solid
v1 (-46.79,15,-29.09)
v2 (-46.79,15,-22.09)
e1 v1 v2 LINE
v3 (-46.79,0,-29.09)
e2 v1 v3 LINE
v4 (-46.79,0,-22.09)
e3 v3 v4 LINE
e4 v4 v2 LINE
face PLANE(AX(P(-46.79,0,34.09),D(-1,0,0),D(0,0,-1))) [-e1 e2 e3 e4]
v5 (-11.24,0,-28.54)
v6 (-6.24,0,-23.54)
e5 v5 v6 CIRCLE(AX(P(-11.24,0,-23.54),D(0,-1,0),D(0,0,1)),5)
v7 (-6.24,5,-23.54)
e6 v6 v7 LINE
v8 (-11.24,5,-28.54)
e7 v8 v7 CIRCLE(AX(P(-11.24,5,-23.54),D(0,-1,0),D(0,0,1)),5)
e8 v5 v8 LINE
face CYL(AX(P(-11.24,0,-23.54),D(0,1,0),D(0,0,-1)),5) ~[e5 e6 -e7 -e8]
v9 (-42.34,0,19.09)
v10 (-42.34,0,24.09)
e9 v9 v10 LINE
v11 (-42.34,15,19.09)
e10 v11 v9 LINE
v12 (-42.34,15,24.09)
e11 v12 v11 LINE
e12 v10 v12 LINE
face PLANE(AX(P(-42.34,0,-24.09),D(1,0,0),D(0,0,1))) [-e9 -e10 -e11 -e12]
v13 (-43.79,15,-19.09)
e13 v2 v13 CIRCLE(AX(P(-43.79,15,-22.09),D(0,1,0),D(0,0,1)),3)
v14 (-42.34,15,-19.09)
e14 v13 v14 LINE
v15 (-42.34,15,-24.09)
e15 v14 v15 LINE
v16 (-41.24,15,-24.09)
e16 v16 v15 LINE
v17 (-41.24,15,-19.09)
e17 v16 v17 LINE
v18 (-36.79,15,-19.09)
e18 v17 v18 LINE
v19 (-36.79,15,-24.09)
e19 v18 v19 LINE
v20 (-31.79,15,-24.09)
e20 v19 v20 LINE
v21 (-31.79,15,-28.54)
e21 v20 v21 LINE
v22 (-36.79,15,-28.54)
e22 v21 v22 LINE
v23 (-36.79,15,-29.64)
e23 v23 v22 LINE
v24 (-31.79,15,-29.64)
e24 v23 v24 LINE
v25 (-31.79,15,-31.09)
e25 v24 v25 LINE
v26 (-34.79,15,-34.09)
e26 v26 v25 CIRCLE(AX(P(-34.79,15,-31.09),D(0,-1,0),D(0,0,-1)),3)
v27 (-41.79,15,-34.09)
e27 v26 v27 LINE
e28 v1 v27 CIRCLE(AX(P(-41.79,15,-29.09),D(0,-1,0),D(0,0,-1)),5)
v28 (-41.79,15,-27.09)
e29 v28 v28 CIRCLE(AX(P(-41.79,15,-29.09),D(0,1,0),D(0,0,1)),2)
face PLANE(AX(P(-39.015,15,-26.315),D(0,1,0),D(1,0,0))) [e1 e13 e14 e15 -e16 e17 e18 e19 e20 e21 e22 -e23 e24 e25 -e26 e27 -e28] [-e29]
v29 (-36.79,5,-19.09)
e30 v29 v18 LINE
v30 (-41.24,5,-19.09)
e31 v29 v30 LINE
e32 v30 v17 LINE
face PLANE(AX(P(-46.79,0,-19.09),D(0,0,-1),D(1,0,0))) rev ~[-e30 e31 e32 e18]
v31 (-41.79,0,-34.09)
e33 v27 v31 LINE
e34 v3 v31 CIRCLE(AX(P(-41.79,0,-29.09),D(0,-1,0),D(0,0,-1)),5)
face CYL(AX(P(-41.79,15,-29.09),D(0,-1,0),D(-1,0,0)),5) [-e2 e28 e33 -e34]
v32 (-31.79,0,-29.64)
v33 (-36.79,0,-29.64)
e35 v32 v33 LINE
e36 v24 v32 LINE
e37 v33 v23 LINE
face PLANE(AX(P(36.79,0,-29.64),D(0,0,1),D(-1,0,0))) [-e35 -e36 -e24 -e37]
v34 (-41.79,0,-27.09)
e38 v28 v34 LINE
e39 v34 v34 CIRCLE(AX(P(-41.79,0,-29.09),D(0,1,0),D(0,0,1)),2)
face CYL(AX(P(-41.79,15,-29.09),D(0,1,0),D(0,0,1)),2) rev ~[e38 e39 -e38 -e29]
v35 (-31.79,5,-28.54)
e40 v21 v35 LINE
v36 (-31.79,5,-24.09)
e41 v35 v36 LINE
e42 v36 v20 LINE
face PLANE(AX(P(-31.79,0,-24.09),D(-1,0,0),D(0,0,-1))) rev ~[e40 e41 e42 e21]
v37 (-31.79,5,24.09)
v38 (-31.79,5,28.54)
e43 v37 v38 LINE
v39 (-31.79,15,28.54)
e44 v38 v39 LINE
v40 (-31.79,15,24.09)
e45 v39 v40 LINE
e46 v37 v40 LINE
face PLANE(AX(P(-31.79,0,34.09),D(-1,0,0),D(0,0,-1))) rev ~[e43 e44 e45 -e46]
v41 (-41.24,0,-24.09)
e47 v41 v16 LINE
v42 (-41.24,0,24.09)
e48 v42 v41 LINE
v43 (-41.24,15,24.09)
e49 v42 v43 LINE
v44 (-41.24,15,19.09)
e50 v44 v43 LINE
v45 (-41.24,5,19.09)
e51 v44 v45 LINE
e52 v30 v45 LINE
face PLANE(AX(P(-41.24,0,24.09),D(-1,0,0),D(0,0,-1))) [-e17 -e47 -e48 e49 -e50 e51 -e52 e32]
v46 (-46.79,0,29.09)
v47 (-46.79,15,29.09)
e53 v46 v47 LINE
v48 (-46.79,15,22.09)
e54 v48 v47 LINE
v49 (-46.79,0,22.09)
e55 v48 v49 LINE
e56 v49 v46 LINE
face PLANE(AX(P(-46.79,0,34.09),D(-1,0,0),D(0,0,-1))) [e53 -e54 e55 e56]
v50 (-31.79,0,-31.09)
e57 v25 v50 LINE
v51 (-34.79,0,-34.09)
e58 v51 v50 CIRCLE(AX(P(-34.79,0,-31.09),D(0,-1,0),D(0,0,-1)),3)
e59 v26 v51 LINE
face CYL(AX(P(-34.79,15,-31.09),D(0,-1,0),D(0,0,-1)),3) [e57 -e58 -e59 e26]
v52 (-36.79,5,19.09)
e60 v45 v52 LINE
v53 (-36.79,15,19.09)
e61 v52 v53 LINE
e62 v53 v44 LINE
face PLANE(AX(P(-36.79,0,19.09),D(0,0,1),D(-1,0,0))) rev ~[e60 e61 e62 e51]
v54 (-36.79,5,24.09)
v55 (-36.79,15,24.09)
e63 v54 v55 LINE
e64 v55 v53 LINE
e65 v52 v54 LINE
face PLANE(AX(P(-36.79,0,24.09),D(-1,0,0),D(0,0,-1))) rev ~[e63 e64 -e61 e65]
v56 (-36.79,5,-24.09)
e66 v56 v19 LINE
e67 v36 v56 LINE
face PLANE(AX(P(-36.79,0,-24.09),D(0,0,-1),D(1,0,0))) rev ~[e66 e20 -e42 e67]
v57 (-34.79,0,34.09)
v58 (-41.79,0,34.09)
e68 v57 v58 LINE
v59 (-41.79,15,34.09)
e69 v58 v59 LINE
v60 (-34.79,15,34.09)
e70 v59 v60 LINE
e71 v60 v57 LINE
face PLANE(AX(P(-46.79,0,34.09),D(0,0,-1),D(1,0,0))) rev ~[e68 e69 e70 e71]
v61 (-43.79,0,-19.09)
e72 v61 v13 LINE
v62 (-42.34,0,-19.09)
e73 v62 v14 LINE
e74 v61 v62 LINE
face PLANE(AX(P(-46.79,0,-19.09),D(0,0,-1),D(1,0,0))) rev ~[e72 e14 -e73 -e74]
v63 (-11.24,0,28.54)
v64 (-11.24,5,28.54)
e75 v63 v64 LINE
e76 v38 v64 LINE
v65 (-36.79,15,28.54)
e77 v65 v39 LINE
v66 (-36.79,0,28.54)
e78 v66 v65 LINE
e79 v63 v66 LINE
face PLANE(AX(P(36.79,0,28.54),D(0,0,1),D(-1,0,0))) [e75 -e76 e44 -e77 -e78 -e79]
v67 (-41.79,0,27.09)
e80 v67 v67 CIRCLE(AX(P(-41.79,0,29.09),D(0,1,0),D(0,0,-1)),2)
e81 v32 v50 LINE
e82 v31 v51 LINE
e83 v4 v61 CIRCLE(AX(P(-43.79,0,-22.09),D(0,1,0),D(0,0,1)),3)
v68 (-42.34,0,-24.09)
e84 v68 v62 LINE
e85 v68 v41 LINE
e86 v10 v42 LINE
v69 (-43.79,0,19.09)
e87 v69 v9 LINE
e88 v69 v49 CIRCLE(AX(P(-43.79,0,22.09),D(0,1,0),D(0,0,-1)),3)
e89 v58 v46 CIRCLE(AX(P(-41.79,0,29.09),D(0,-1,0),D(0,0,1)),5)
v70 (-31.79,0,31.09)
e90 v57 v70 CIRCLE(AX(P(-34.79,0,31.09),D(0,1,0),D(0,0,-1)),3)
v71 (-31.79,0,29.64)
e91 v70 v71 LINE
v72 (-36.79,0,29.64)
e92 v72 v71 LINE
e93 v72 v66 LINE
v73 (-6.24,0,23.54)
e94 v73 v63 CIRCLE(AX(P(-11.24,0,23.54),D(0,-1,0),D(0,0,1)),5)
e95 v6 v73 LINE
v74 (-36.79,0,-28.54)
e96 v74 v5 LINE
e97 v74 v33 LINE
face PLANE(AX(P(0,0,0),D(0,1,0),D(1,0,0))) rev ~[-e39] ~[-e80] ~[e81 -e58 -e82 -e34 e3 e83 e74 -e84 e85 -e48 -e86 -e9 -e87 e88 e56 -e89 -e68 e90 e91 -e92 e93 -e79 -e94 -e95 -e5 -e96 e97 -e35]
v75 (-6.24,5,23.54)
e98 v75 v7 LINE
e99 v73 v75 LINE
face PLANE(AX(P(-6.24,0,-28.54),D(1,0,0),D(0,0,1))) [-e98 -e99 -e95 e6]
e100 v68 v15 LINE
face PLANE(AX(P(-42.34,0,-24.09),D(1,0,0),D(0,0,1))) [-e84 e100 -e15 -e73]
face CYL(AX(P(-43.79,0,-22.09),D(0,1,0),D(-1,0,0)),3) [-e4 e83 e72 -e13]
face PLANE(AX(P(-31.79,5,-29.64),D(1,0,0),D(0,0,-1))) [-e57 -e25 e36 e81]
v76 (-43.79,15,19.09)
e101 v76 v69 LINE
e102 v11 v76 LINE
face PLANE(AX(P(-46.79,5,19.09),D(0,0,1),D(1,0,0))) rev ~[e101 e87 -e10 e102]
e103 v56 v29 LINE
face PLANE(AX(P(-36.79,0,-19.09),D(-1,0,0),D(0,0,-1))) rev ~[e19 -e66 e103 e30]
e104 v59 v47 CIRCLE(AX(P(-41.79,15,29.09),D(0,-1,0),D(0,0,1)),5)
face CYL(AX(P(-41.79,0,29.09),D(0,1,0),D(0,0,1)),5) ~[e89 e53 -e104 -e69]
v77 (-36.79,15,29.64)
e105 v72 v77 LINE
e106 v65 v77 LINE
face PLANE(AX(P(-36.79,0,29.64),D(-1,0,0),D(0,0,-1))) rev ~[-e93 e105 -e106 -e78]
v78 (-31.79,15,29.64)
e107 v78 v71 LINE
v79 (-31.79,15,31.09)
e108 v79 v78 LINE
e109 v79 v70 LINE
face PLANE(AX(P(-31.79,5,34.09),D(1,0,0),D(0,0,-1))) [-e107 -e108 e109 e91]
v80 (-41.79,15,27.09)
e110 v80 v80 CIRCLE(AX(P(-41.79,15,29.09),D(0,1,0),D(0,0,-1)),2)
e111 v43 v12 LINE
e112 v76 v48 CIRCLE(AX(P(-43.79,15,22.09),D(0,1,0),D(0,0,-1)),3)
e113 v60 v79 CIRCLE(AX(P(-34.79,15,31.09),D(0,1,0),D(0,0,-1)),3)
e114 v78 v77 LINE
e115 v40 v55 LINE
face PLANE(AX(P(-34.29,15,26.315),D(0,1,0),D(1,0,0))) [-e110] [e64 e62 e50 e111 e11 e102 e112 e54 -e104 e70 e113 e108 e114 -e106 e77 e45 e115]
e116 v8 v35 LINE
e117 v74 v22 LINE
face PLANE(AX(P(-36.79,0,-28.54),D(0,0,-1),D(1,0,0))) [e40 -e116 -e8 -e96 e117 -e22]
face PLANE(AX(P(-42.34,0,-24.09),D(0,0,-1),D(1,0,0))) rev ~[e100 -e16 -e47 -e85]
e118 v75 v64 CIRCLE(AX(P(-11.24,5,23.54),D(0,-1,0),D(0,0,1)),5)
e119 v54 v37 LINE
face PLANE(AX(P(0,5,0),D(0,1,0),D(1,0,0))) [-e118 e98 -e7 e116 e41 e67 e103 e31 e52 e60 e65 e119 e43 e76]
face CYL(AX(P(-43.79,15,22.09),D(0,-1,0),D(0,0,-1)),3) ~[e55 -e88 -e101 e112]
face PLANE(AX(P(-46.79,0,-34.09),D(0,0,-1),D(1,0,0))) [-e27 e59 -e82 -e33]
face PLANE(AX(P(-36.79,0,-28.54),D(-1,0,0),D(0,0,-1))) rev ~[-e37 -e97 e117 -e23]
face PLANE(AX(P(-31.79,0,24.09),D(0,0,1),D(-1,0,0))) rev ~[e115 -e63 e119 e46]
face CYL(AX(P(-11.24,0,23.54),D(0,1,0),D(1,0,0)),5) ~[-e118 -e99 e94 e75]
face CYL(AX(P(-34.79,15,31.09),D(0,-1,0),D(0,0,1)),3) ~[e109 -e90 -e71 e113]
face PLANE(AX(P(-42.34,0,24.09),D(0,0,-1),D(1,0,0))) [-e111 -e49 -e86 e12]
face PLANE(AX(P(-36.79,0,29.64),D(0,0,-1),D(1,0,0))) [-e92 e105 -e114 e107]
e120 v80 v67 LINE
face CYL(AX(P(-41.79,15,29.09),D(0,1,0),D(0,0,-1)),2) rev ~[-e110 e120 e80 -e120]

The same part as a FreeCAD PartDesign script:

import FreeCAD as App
import Part
import Sketcher


def edges_at(feature, points):
    """Names of the edges that pass closest to the given points."""
    edges = feature.Shape.Edges
    near = lambda p: min(range(len(edges)), key=lambda i: edges[i].distToShape(Part.Vertex(*p))[0])
    return sorted({f"Edge{near(p) + 1}" for p in points})


def add_polygon(sketch, points):
    """Adds a closed chain of lines whose ends are joined by coincident constraints."""
    first, n = sketch.GeometryCount, len(points)
    for a, b in zip(points, points[1:] + points[:1]):
        sketch.addGeometry(Part.LineSegment(App.Vector(*a, 0), App.Vector(*b, 0)), False)
    for i in range(n):
        sketch.addConstraint(Sketcher.Constraint("Coincident", first + i, 2, first + (i + 1) % n, 1))

doc = App.newDocument("Part")
body = doc.addObject("PartDesign::Body", "Body")

# Sketch on XZ plane
sketch1 = body.newObject("Sketcher::SketchObject", "Sketch")
sketch1.AttachmentSupport = (doc.getObject("XZ_Plane"), [""])
sketch1.MapMode = "FlatFace"
add_polygon(sketch1, [(-46.79, -34.09), (-46.79, 34.09), (46.79, 34.09), (46.79, -34.09)])  # lines 0-3
sketch1.addConstraint(Sketcher.Constraint("Vertical", 0))
sketch1.addConstraint(Sketcher.Constraint("Horizontal", 1))
sketch1.addConstraint(Sketcher.Constraint("Vertical", 2))
sketch1.addConstraint(Sketcher.Constraint("Horizontal", 3))
sketch1.addConstraint(Sketcher.Constraint("Symmetric", 0, 2, 2, 2, -1, 1))
sketch1.addConstraint(Sketcher.Constraint("DistanceX", 1, 1, 1, 2, 93.58))
sketch1.addConstraint(Sketcher.Constraint("DistanceY", 0, 1, 0, 2, 68.18))
pad1 = body.newObject("PartDesign::Pad", "Pad")
pad1.Profile = sketch1
pad1.Length = 5
pad1.Reversed = True

# Sketch on XZ plane
sketch2 = body.newObject("Sketcher::SketchObject", "Sketch001")
sketch2.AttachmentSupport = (doc.getObject("XZ_Plane"), [""])
sketch2.MapMode = "FlatFace"
add_polygon(sketch2, [(-36.79, -19.09), (-36.79, -24.09), (-31.79, -24.09), (-31.79, -34.09), (-46.79, -34.09), (-46.79, -19.09)])  # lines 0-5
add_polygon(sketch2, [(-31.79, 24.09), (-36.79, 24.09), (-36.79, 19.09), (-46.79, 19.09), (-46.79, 34.09), (-31.79, 34.09)])  # lines 6-11
add_polygon(sketch2, [(36.79, 19.09), (36.79, 24.09), (31.79, 24.09), (31.79, 34.09), (46.79, 34.09), (46.79, 19.09)])  # lines 12-17
add_polygon(sketch2, [(31.79, -24.09), (36.79, -24.09), (36.79, -19.09), (46.79, -19.09), (46.79, -34.09), (31.79, -34.09)])  # lines 18-23
sketch2.addConstraint(Sketcher.Constraint("Vertical", 0))
sketch2.addConstraint(Sketcher.Constraint("Horizontal", 1))
sketch2.addConstraint(Sketcher.Constraint("Vertical", 2))
sketch2.addConstraint(Sketcher.Constraint("Horizontal", 3))
sketch2.addConstraint(Sketcher.Constraint("Vertical", 4))
sketch2.addConstraint(Sketcher.Constraint("Horizontal", 5))
sketch2.addConstraint(Sketcher.Constraint("Horizontal", 6))
sketch2.addConstraint(Sketcher.Constraint("Vertical", 7))
sketch2.addConstraint(Sketcher.Constraint("Horizontal", 8))
sketch2.addConstraint(Sketcher.Constraint("Vertical", 9))
sketch2.addConstraint(Sketcher.Constraint("Horizontal", 10))
sketch2.addConstraint(Sketcher.Constraint("Vertical", 11))
sketch2.addConstraint(Sketcher.Constraint("Vertical", 12))
sketch2.addConstraint(Sketcher.Constraint("Horizontal", 13))
sketch2.addConstraint(Sketcher.Constraint("Vertical", 14))
sketch2.addConstraint(Sketcher.Constraint("Horizontal", 15))
sketch2.addConstraint(Sketcher.Constraint("Vertical", 16))
sketch2.addConstraint(Sketcher.Constraint("Horizontal", 17))
sketch2.addConstraint(Sketcher.Constraint("Horizontal", 18))
sketch2.addConstraint(Sketcher.Constraint("Vertical", 19))
sketch2.addConstraint(Sketcher.Constraint("Horizontal", 20))
sketch2.addConstraint(Sketcher.Constraint("Vertical", 21))
sketch2.addConstraint(Sketcher.Constraint("Horizontal", 22))
sketch2.addConstraint(Sketcher.Constraint("Vertical", 23))
sketch2.addConstraint(Sketcher.Constraint("Symmetric", 0, 2, 12, 2, -1, 1))
sketch2.addConstraint(Sketcher.Constraint("Symmetric", 2, 2, 14, 2, -1, 1))
sketch2.addConstraint(Sketcher.Constraint("Symmetric", 4, 2, 16, 2, -1, 1))
sketch2.addConstraint(Sketcher.Constraint("Symmetric", 6, 2, 18, 2, -1, 1))
sketch2.addConstraint(Sketcher.Constraint("Symmetric", 8, 2, 20, 2, -1, 1))
sketch2.addConstraint(Sketcher.Constraint("Symmetric", 10, 2, 22, 2, -1, 1))
sketch2.addConstraint(Sketcher.Constraint("Symmetric", 6, 2, 12, 2, -2))
sketch2.addConstraint(Sketcher.Constraint("Symmetric", 10, 2, 14, 2, -2))
sketch2.addConstraint(Sketcher.Constraint("Symmetric", 8, 2, 16, 2, -2))
sketch2.addConstraint(Sketcher.Constraint("Equal", 18, 0))
sketch2.addConstraint(Sketcher.Constraint("Equal", 20, 2))
sketch2.addConstraint(Sketcher.Constraint("DistanceX", 1, 1, 1, 2, 5.0))
sketch2.addConstraint(Sketcher.Constraint("DistanceX", 3, 2, 3, 1, 15.0))
sketch2.addConstraint(Sketcher.Constraint("DistanceX", 0, 2, -1, 1, 36.79))
sketch2.addConstraint(Sketcher.Constraint("DistanceY", 0, 2, -1, 1, 24.09))
pad2 = body.newObject("PartDesign::Pad", "Pad001")
pad2.Profile = sketch2
pad2.Length = 15
pad2.Reversed = True

# Sketch on XZ plane
sketch3 = body.newObject("Sketcher::SketchObject", "Sketch002")
sketch3.AttachmentSupport = (doc.getObject("XZ_Plane"), [""])
sketch3.MapMode = "FlatFace"
add_polygon(sketch3, [(41.24, 24.09), (42.34, 24.09), (42.34, -24.09), (41.24, -24.09)])  # lines 0-3
add_polygon(sketch3, [(36.79, 29.64), (36.79, 28.54), (-36.79, 28.54), (-36.79, 29.64)])  # lines 4-7
add_polygon(sketch3, [(36.79, -28.54), (36.79, -29.64), (-36.79, -29.64), (-36.79, -28.54)])  # lines 8-11
add_polygon(sketch3, [(-42.34, -24.09), (-42.34, 24.09), (-41.24, 24.09), (-41.24, -24.09)])  # lines 12-15
sketch3.addConstraint(Sketcher.Constraint("Horizontal", 0))
sketch3.addConstraint(Sketcher.Constraint("Vertical", 1))
sketch3.addConstraint(Sketcher.Constraint("Horizontal", 2))
sketch3.addConstraint(Sketcher.Constraint("Vertical", 3))
sketch3.addConstraint(Sketcher.Constraint("Vertical", 4))
sketch3.addConstraint(Sketcher.Constraint("Horizontal", 5))
sketch3.addConstraint(Sketcher.Constraint("Vertical", 6))
sketch3.addConstraint(Sketcher.Constraint("Horizontal", 7))
sketch3.addConstraint(Sketcher.Constraint("Vertical", 8))
sketch3.addConstraint(Sketcher.Constraint("Horizontal", 9))
sketch3.addConstraint(Sketcher.Constraint("Vertical", 10))
sketch3.addConstraint(Sketcher.Constraint("Horizontal", 11))
sketch3.addConstraint(Sketcher.Constraint("Vertical", 12))
sketch3.addConstraint(Sketcher.Constraint("Horizontal", 13))
sketch3.addConstraint(Sketcher.Constraint("Vertical", 14))
sketch3.addConstraint(Sketcher.Constraint("Horizontal", 15))
sketch3.addConstraint(Sketcher.Constraint("Symmetric", 6, 2, 8, 2, -1, 1))
sketch3.addConstraint(Sketcher.Constraint("Symmetric", 4, 2, 10, 2, -1, 1))
sketch3.addConstraint(Sketcher.Constraint("Symmetric", 1, 2, 12, 2, -1, 1))
sketch3.addConstraint(Sketcher.Constraint("Symmetric", 3, 2, 14, 2, -1, 1))
sketch3.addConstraint(Sketcher.Constraint("Horizontal", 3, 2, 12, 2))
sketch3.addConstraint(Sketcher.Constraint("Vertical", 7, 2, 8, 2))
sketch3.addConstraint(Sketcher.Constraint("Equal", 15, 4))
sketch3.addConstraint(Sketcher.Constraint("DistanceX", 0, 1, 0, 2, 1.1))
sketch3.addConstraint(Sketcher.Constraint("DistanceX", 5, 2, 5, 1, 73.58))
sketch3.addConstraint(Sketcher.Constraint("DistanceY", 1, 2, 1, 1, 48.18))
sketch3.addConstraint(Sketcher.Constraint("DistanceX", -1, 1, 0, 2, 42.34))
sketch3.addConstraint(Sketcher.Constraint("DistanceY", -1, 1, 4, 2, 28.54))
pocket1 = body.newObject("PartDesign::Pocket", "Pocket")
pocket1.Profile = sketch3
pocket1.Type = "ThroughAll"

# Sketch on XZ plane
sketch4 = body.newObject("Sketcher::SketchObject", "Sketch003")
sketch4.AttachmentSupport = (doc.getObject("XZ_Plane"), [""])
sketch4.MapMode = "FlatFace"
sketch4.AttachmentOffset = App.Placement(App.Vector(0, 0, -5), App.Rotation())
add_polygon(sketch4, [(-31.79, 29.64), (-31.79, 34.09), (31.79, 34.09), (31.79, 29.64)])  # lines 0-3
add_polygon(sketch4, [(42.34, -19.09), (42.34, 19.09), (46.79, 19.09), (46.79, -19.09)])  # lines 4-7
add_polygon(sketch4, [(-31.79, -34.09), (-31.79, -29.64), (31.79, -29.64), (31.79, -34.09)])  # lines 8-11
add_polygon(sketch4, [(-46.79, -19.09), (-46.79, 19.09), (-42.34, 19.09), (-42.34, -19.09)])  # lines 12-15
sketch4.addConstraint(Sketcher.Constraint("Vertical", 0))
sketch4.addConstraint(Sketcher.Constraint("Horizontal", 1))
sketch4.addConstraint(Sketcher.Constraint("Vertical", 2))
sketch4.addConstraint(Sketcher.Constraint("Horizontal", 3))
sketch4.addConstraint(Sketcher.Constraint("Vertical", 4))
sketch4.addConstraint(Sketcher.Constraint("Horizontal", 5))
sketch4.addConstraint(Sketcher.Constraint("Vertical", 6))
sketch4.addConstraint(Sketcher.Constraint("Horizontal", 7))
sketch4.addConstraint(Sketcher.Constraint("Vertical", 8))
sketch4.addConstraint(Sketcher.Constraint("Horizontal", 9))
sketch4.addConstraint(Sketcher.Constraint("Vertical", 10))
sketch4.addConstraint(Sketcher.Constraint("Horizontal", 11))
sketch4.addConstraint(Sketcher.Constraint("Vertical", 12))
sketch4.addConstraint(Sketcher.Constraint("Horizontal", 13))
sketch4.addConstraint(Sketcher.Constraint("Vertical", 14))
sketch4.addConstraint(Sketcher.Constraint("Horizontal", 15))
sketch4.addConstraint(Sketcher.Constraint("Symmetric", 2, 2, 8, 2, -1, 1))
sketch4.addConstraint(Sketcher.Constraint("Symmetric", 0, 2, 10, 2, -1, 1))
sketch4.addConstraint(Sketcher.Constraint("Symmetric", 6, 2, 12, 2, -1, 1))
sketch4.addConstraint(Sketcher.Constraint("Symmetric", 4, 2, 14, 2, -1, 1))
sketch4.addConstraint(Sketcher.Constraint("Horizontal", 5, 2, 12, 2))
sketch4.addConstraint(Sketcher.Constraint("Vertical", 3, 2, 8, 2))
sketch4.addConstraint(Sketcher.Constraint("Equal", 15, 0))
sketch4.addConstraint(Sketcher.Constraint("DistanceY", 4, 2, 1, 2, 15.0))
sketch4.addConstraint(Sketcher.Constraint("DistanceX", 2, 2, 5, 2, 15.0))
sketch4.addConstraint(Sketcher.Constraint("DistanceX", 1, 1, 1, 2, 63.58))
sketch4.addConstraint(Sketcher.Constraint("DistanceX", 5, 1, 5, 2, 4.45))
sketch4.addConstraint(Sketcher.Constraint("DistanceY", 4, 1, 4, 2, 38.18))
pocket2 = body.newObject("PartDesign::Pocket", "Pocket001")
pocket2.Profile = sketch4
pocket2.Length = 5
pocket2.Reversed = True

# Sketch on XZ plane
sketch5 = body.newObject("Sketcher::SketchObject", "Sketch004")
sketch5.AttachmentSupport = (doc.getObject("XZ_Plane"), [""])
sketch5.MapMode = "FlatFace"
sketch5.AttachmentOffset = App.Placement(App.Vector(0, 0, -5), App.Rotation())
sketch5.addGeometry(Part.Circle(App.Vector(36.79, 10.16, 0), App.Vector(0, 0, 1), 2.25), False)
sketch5.addGeometry(Part.Circle(App.Vector(16.79, 10.16, 0), App.Vector(0, 0, 1), 2.25), False)
sketch5.addGeometry(Part.Circle(App.Vector(26.79, -19.64, 0), App.Vector(0, 0, 1), 2.25), False)
sketch5.addConstraint(Sketcher.Constraint("Equal", 0, 1))
sketch5.addConstraint(Sketcher.Constraint("Equal", 1, 2))
sketch5.addConstraint(Sketcher.Constraint("Horizontal", 0, 3, 1, 3))
sketch5.addConstraint(Sketcher.Constraint("Diameter", 0, 4.5))
sketch5.addConstraint(Sketcher.Constraint("DistanceX", 1, 3, 0, 3, 20.0))
sketch5.addConstraint(Sketcher.Constraint("DistanceX", 2, 3, 0, 3, 10.0))
sketch5.addConstraint(Sketcher.Constraint("DistanceY", 2, 3, 0, 3, 29.8))
sketch5.addConstraint(Sketcher.Constraint("DistanceX", -1, 1, 0, 3, 36.79))
sketch5.addConstraint(Sketcher.Constraint("DistanceY", -1, 1, 0, 3, 10.16))
pad3 = body.newObject("PartDesign::Pad", "Pad002")
pad3.Profile = sketch5
pad3.Length = 5
pad3.Reversed = True
doc.recompute()

fillet = body.newObject("PartDesign::Fillet", "Fillet")
fillet.Base = (pad3, edges_at(pad3, [
    (-46.79, 7.5, 34.09),
    (46.79, 7.5, 34.09),
    (46.79, 7.5, -34.09),
    (-46.79, 7.5, -34.09),
]))
fillet.Radius = 5
doc.recompute()

fillet2 = body.newObject("PartDesign::Fillet", "Fillet001")
fillet2.Base = (fillet, edges_at(fillet, [
    (31.79, 7.5, -34.09),
    (46.79, 7.5, -19.09),
    (-46.79, 7.5, -19.09),
    (-31.79, 7.5, -34.09),
    (-46.79, 7.5, 19.09),
    (-31.79, 7.5, 34.09),
    (31.79, 7.5, 34.09),
    (46.79, 7.5, 19.09),
]))
fillet2.Radius = 3

# Sketch on XZ plane
sketch6 = body.newObject("Sketcher::SketchObject", "Sketch005")
sketch6.AttachmentSupport = (doc.getObject("XZ_Plane"), [""])
sketch6.MapMode = "FlatFace"
sketch6.AttachmentOffset = App.Placement(App.Vector(0, 0, -15), App.Rotation())
sketch6.addGeometry(Part.Circle(App.Vector(41.79, 29.09, 0), App.Vector(0, 0, 1), 2), False)
sketch6.addGeometry(Part.Circle(App.Vector(-41.79, 29.09, 0), App.Vector(0, 0, 1), 2), False)
sketch6.addGeometry(Part.Circle(App.Vector(-41.79, -29.09, 0), App.Vector(0, 0, 1), 2), False)
sketch6.addGeometry(Part.Circle(App.Vector(41.79, -29.09, 0), App.Vector(0, 0, 1), 2), False)
sketch6.addConstraint(Sketcher.Constraint("Equal", 0, 1))
sketch6.addConstraint(Sketcher.Constraint("Equal", 1, 2))
sketch6.addConstraint(Sketcher.Constraint("Equal", 2, 3))
sketch6.addConstraint(Sketcher.Constraint("Symmetric", 0, 3, 2, 3, -1, 1))
sketch6.addConstraint(Sketcher.Constraint("Symmetric", 1, 3, 3, 3, -1, 1))
sketch6.addConstraint(Sketcher.Constraint("Symmetric", 0, 3, 1, 3, -2))
sketch6.addConstraint(Sketcher.Constraint("Diameter", 0, 4.0))
sketch6.addConstraint(Sketcher.Constraint("DistanceX", -1, 1, 0, 3, 41.79))
sketch6.addConstraint(Sketcher.Constraint("DistanceY", -1, 1, 0, 3, 29.09))
pocket3 = body.newObject("PartDesign::Pocket", "Pocket002")
pocket3.Profile = sketch6
pocket3.Length = 15
pocket3.Reversed = True

# Sketch on XZ plane
sketch7 = body.newObject("Sketcher::SketchObject", "Sketch006")
sketch7.AttachmentSupport = (doc.getObject("XZ_Plane"), [""])
sketch7.MapMode = "FlatFace"
add_polygon(sketch7, [(-6.24, 28.54), (-6.24, -28.54), (6.79, -28.54), (6.79, -34.09), (46.79, -34.09), (46.79, 34.09), (6.79, 34.09), (6.79, 28.54)])  # lines 0-7
sketch7.addConstraint(Sketcher.Constraint("Vertical", 0))
sketch7.addConstraint(Sketcher.Constraint("Horizontal", 1))
sketch7.addConstraint(Sketcher.Constraint("Vertical", 2))
sketch7.addConstraint(Sketcher.Constraint("Horizontal", 3))
sketch7.addConstraint(Sketcher.Constraint("Vertical", 4))
sketch7.addConstraint(Sketcher.Constraint("Horizontal", 5))
sketch7.addConstraint(Sketcher.Constraint("Vertical", 6))
sketch7.addConstraint(Sketcher.Constraint("Horizontal", 7))
sketch7.addConstraint(Sketcher.Constraint("Symmetric", 2, 2, 5, 2, -1))
sketch7.addConstraint(Sketcher.Constraint("Equal", 2, 6))
sketch7.addConstraint(Sketcher.Constraint("DistanceX", 3, 1, 3, 2, 40.0))
sketch7.addConstraint(Sketcher.Constraint("DistanceX", 1, 1, 1, 2, 13.03))
sketch7.addConstraint(Sketcher.Constraint("DistanceY", 0, 2, 0, 1, 57.08))
sketch7.addConstraint(Sketcher.Constraint("DistanceY", 2, 2, 2, 1, 5.55))
sketch7.addConstraint(Sketcher.Constraint("DistanceX", 0, 2, -1, 1, 6.24))
pocket4 = body.newObject("PartDesign::Pocket", "Pocket003")
pocket4.Profile = sketch7
pocket4.Type = "ThroughAll"
doc.recompute()

fillet3 = body.newObject("PartDesign::Fillet", "Fillet002")
fillet3.Base = (pocket4, edges_at(pocket4, [(-6.24, 2.5, 28.54), (-6.24, 2.5, -28.54)]))
fillet3.Radius = 5

doc.recompute()
